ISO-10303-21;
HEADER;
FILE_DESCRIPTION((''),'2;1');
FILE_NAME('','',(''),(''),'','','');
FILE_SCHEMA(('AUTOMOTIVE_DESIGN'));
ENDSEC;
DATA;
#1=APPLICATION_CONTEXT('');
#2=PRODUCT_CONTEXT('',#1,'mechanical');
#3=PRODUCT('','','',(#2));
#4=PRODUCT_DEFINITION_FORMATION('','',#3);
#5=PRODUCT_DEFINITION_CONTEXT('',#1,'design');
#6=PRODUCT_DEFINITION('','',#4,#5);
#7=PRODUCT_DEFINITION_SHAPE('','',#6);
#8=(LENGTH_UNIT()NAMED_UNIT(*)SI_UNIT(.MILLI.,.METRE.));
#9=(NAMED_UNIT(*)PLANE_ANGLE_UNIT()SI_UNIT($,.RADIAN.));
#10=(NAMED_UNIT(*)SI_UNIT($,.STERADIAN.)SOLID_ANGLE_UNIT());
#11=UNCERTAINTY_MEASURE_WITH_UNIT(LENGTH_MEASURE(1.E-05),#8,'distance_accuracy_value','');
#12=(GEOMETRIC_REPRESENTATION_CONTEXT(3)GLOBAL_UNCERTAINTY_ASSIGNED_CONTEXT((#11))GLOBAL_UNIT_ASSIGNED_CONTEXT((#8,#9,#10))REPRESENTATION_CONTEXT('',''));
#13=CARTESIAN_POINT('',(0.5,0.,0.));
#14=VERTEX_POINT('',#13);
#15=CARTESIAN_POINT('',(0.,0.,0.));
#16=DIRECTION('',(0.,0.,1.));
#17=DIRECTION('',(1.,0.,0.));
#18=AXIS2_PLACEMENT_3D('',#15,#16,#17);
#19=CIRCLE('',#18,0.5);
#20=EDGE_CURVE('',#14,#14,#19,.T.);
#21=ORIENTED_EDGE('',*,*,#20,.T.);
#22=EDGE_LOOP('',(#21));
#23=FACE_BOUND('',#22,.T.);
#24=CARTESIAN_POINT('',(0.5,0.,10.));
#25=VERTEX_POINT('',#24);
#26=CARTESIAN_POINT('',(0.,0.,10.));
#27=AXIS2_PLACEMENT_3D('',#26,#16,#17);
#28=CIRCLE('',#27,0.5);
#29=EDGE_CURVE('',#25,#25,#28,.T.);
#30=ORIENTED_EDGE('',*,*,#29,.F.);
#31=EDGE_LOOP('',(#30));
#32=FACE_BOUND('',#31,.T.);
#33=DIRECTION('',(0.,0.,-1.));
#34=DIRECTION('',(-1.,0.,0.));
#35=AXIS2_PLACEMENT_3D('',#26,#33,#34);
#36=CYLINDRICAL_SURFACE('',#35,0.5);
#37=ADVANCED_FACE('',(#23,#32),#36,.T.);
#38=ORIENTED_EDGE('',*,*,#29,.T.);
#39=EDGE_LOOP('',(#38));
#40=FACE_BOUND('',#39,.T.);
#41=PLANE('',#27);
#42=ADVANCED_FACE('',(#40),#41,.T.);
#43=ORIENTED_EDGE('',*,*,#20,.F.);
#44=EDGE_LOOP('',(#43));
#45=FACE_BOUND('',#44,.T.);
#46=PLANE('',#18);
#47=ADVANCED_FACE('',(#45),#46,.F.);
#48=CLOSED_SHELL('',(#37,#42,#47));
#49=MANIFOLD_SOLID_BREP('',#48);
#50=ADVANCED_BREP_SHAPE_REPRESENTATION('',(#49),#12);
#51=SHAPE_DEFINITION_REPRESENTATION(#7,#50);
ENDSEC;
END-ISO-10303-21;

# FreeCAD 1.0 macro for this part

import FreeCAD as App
import Part
import Sketcher

V = App.Vector
Q = App.Units.Quantity

doc = App.newDocument("Part")
body = doc.addObject("PartDesign::Body", "Body")

sketch1 = body.newObject("Sketcher::SketchObject", "Sketch")
sketch1.AttachmentSupport = (doc.getObject("XY_Plane"), [""])
sketch1.MapMode = "FlatFace"
sketch1.addGeometry(Part.Circle(V(0, 0, 0), V(0, 0, 1), 0.5), False)
sketch1.addConstraint(Sketcher.Constraint("Coincident", 0, 3, -1, 1))
sketch1.addConstraint(Sketcher.Constraint("Diameter", 0, Q("1 mm")))
pad1 = body.newObject("PartDesign::Pad", "Pad")
pad1.Profile = sketch1
pad1.Length = 10

doc.recompute()
